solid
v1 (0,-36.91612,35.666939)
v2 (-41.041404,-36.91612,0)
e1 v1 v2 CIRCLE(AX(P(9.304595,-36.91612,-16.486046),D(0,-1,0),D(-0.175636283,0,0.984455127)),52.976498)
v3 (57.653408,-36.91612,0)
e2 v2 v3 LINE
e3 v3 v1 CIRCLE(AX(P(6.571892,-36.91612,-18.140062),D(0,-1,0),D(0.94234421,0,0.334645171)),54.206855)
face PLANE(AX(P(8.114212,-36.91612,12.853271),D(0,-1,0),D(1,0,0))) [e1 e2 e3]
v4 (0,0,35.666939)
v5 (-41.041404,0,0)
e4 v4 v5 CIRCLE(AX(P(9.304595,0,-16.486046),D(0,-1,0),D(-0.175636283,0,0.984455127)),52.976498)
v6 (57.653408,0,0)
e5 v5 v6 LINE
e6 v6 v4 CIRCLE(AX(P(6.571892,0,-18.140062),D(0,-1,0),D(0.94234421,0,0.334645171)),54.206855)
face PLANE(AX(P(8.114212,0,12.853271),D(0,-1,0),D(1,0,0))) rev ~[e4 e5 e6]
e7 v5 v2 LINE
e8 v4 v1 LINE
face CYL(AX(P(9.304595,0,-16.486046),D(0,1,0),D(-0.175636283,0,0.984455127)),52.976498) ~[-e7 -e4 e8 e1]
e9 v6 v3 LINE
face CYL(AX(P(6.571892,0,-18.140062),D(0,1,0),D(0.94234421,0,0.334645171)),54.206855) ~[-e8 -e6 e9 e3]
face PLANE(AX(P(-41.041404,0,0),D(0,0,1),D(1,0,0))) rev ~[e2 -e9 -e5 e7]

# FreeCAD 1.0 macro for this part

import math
import FreeCAD as App
import Part
import Sketcher

V = App.Vector

doc = App.newDocument("Part")
body = doc.addObject("PartDesign::Body", "Body")

sketch1 = body.newObject("Sketcher::SketchObject", "Sketch")
sketch1.AttachmentSupport = (doc.getObject("XZ_Plane"), [""])
sketch1.MapMode = "FlatFace"
sketch1.addGeometry(Part.ArcOfCircle(Part.Circle(V(7, -18, 0), V(0, 0, 1), 54), math.radians(20), math.radians(97)), False)
sketch1.addGeometry(Part.ArcOfCircle(Part.Circle(V(9, -16, 0), V(0, 0, 1), 53), math.radians(100), math.radians(162)), False)
sketch1.addGeometry(Part.LineSegment(V(-41, 0, 0), V(58, 0, 0)), False)
sketch1.addConstraint(Sketcher.Constraint("Coincident", 0, 2, 1, 1))
sketch1.addConstraint(Sketcher.Constraint("Coincident", 1, 2, 2, 1))
sketch1.addConstraint(Sketcher.Constraint("Coincident", 2, 2, 0, 1))
sketch1.addConstraint(Sketcher.Constraint("Horizontal", 2))
sketch1.addConstraint(Sketcher.Constraint("PointOnObject", 0, 2, -2))
sketch1.addConstraint(Sketcher.Constraint("PointOnObject", 1, 2, -1))
sketch1.addConstraint(Sketcher.Constraint("Radius", 1, 52.976498))
sketch1.addConstraint(Sketcher.Constraint("Radius", 0, 54.206855))
sketch1.addConstraint(Sketcher.Constraint("DistanceY", 0, 3, 0, 2, 53.807001))
sketch1.addConstraint(Sketcher.Constraint("DistanceX", 1, 2, 1, 3, 50.345999))
sketch1.addConstraint(Sketcher.Constraint("DistanceX", 2, 1, 2, 2, 98.694812))
pad1 = body.newObject("PartDesign::Pad", "Pad")
pad1.Profile = sketch1
pad1.Length = 36.91612

doc.recompute()
